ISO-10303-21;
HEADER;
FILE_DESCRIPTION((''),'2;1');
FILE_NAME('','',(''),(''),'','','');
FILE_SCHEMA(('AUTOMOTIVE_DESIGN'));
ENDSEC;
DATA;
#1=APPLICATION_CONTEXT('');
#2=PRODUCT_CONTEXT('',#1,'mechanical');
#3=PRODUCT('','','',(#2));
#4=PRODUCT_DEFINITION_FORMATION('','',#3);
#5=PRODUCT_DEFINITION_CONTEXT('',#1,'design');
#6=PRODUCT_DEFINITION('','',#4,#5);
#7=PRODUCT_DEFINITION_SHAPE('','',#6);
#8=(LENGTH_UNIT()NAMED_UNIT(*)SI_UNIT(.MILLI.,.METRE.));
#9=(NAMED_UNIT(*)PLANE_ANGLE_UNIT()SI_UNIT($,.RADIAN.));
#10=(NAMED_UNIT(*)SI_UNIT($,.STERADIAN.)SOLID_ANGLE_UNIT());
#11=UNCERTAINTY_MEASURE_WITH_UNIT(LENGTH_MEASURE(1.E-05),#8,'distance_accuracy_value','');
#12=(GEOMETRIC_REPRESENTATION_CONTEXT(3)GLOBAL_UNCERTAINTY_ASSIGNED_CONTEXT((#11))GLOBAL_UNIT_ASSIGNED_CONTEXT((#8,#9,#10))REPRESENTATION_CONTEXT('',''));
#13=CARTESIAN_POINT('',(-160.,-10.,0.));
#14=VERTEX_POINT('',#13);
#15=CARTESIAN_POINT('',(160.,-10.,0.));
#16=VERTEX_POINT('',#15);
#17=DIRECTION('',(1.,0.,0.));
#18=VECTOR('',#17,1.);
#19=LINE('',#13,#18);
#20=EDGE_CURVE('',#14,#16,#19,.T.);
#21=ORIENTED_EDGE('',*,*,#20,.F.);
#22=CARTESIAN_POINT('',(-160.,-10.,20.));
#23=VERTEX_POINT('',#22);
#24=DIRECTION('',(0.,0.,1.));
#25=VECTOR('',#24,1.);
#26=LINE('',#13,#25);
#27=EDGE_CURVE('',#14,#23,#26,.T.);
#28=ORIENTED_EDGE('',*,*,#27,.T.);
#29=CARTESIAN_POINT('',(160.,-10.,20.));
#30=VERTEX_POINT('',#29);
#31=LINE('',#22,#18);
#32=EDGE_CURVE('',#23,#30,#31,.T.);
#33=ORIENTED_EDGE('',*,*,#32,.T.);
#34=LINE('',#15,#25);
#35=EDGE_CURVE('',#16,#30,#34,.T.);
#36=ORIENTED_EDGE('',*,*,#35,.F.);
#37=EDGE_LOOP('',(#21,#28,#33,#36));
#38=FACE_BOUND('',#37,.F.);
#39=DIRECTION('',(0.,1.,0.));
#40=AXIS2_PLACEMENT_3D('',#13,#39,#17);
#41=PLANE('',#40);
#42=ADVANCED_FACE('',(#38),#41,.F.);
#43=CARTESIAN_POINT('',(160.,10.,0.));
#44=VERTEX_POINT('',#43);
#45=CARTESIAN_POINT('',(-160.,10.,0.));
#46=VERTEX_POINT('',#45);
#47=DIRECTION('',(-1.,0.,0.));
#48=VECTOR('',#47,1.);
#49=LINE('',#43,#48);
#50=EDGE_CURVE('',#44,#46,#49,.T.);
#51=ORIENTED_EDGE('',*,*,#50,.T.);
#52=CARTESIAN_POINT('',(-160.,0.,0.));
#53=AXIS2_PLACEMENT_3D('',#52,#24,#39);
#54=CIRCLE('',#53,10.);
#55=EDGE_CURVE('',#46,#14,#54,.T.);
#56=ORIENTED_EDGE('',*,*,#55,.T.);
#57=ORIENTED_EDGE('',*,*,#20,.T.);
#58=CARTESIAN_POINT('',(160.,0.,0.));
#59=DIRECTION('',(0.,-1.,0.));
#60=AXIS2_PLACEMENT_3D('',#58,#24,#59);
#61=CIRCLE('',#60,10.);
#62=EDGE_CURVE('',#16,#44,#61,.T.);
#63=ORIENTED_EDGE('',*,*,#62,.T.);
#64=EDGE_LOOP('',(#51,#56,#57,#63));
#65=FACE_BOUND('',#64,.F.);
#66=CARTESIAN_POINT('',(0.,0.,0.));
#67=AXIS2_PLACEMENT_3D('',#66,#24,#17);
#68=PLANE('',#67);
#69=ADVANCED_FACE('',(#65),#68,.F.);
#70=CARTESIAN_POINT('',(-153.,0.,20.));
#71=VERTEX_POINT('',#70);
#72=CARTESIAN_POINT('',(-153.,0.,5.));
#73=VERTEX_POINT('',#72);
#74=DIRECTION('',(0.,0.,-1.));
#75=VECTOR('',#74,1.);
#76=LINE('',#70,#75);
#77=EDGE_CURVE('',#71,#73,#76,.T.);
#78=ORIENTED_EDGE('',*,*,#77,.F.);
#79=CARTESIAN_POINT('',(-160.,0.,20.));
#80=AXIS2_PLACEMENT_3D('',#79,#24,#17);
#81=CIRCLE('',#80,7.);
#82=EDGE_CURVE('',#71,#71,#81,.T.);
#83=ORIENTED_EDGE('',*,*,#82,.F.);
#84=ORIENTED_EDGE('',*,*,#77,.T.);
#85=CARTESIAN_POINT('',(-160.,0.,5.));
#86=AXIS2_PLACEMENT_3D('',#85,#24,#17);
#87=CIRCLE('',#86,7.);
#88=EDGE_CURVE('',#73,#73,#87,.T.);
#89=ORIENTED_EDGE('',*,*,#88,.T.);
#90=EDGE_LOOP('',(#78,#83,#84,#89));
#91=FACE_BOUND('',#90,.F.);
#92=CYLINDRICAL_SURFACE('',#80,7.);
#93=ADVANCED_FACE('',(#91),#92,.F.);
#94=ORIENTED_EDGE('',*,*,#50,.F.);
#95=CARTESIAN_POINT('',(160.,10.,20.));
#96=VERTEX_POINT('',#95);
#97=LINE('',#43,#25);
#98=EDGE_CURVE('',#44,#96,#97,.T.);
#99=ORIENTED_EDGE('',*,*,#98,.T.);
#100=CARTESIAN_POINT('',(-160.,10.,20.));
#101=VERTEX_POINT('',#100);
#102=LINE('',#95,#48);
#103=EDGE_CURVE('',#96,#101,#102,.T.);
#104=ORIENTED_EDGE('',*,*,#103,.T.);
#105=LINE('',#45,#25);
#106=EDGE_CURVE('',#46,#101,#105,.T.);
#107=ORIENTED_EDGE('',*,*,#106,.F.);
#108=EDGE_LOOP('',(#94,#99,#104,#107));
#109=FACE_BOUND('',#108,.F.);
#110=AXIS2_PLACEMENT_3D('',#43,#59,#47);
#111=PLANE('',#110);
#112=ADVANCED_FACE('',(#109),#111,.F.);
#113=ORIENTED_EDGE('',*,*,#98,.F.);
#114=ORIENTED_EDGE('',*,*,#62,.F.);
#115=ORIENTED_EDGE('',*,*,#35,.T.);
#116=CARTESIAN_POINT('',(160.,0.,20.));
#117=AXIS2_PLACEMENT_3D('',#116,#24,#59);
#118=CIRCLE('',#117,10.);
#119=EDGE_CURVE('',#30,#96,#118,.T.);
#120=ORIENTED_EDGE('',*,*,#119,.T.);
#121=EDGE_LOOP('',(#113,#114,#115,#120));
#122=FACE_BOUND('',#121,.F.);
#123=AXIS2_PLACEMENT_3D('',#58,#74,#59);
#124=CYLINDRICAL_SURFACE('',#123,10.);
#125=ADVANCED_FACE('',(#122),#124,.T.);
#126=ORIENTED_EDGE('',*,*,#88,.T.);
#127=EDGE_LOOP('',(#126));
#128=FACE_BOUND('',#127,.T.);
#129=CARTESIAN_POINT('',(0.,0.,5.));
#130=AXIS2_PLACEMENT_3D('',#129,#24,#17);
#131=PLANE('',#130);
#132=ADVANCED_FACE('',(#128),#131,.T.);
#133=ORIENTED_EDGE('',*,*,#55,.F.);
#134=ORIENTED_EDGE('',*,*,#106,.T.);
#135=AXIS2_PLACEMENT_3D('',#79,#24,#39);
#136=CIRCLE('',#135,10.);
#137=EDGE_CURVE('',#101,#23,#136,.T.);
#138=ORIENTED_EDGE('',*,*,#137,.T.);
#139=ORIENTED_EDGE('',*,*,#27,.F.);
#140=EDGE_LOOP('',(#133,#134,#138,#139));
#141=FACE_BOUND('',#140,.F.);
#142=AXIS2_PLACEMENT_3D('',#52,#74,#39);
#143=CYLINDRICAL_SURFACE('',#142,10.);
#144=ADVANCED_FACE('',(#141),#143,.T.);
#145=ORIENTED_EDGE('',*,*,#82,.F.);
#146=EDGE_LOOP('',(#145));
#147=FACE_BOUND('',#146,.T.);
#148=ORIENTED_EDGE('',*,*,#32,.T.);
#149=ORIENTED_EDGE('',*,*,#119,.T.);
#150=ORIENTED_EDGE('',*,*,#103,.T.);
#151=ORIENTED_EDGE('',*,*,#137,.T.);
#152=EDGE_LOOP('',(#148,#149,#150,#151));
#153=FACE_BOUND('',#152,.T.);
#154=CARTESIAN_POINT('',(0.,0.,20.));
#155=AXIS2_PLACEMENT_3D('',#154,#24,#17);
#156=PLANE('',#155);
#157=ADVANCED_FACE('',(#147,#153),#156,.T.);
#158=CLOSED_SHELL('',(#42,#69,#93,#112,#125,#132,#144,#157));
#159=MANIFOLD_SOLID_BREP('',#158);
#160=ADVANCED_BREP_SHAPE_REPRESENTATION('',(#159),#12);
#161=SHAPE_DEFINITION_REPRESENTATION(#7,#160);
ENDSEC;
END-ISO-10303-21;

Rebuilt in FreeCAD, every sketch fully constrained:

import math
import FreeCAD as App
import Part
import Sketcher
from FreeCAD import Vector

doc = App.newDocument("Part")
body = doc.addObject("PartDesign::Body", "Body")

sketch1 = body.newObject("Sketcher::SketchObject", "Sketch")
sketch1.AttachmentSupport = (doc.getObject("XY_Plane"), [""])
sketch1.MapMode = "FlatFace"
sketch1.addGeometry(Part.ArcOfCircle(Part.Circle(Vector(-160, 0, 0), Vector(0, 0, 1), 10), math.radians(90), math.radians(270)), False)
sketch1.addGeometry(Part.LineSegment(Vector(-160, -10, 0), Vector(160, -10, 0)), False)
sketch1.addGeometry(Part.ArcOfCircle(Part.Circle(Vector(160, 0, 0), Vector(0, 0, 1), 10), math.radians(-90), math.radians(90)), False)
sketch1.addGeometry(Part.LineSegment(Vector(160, 10, 0), Vector(-160, 10, 0)), False)
sketch1.addConstraint(Sketcher.Constraint("Tangent", 0, 2, 1, 1))
sketch1.addConstraint(Sketcher.Constraint("Tangent", 1, 2, 2, 1))
sketch1.addConstraint(Sketcher.Constraint("Tangent", 2, 2, 3, 1))
sketch1.addConstraint(Sketcher.Constraint("Tangent", 3, 2, 0, 1))
sketch1.addConstraint(Sketcher.Constraint("Horizontal", 1))
sketch1.addConstraint(Sketcher.Constraint("Horizontal", 3))
sketch1.addConstraint(Sketcher.Constraint("Symmetric", 0, 3, 2, 3, -1, 1))
sketch1.addConstraint(Sketcher.Constraint("Radius", 0, 10.0))
sketch1.addConstraint(Sketcher.Constraint("DistanceX", 1, 1, 1, 2, 320.0))
pad1 = body.newObject("PartDesign::Pad", "Pad")
pad1.Profile = sketch1
pad1.Length = 20

sketch2 = body.newObject("Sketcher::SketchObject", "Sketch001")
sketch2.AttachmentSupport = (doc.getObject("XY_Plane"), [""])
sketch2.MapMode = "FlatFace"
sketch2.AttachmentOffset = App.Placement(Vector(0, 0, 20), App.Rotation())
sketch2.addGeometry(Part.Circle(Vector(-160, 0, 0), Vector(0, 0, 1), 7), False)
sketch2.addConstraint(Sketcher.Constraint("PointOnObject", 0, 3, -1))
sketch2.addConstraint(Sketcher.Constraint("Diameter", 0, 14.0))
sketch2.addConstraint(Sketcher.Constraint("DistanceX", 0, 3, -1, 1, 160.0))
pocket1 = body.newObject("PartDesign::Pocket", "Pocket")
pocket1.Profile = sketch2
pocket1.Length = 15

doc.recompute()
